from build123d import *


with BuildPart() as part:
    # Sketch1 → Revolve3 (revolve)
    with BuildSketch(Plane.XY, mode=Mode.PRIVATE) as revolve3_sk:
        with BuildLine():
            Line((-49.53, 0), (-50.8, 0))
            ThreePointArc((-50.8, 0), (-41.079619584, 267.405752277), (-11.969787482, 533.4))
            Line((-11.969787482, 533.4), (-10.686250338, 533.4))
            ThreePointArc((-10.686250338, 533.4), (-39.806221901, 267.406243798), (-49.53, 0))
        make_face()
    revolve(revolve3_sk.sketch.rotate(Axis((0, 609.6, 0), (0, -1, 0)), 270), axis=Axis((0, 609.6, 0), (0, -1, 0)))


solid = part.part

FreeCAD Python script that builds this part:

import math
import FreeCAD as App
import Part
import Sketcher
from FreeCAD import Vector
Q = App.Units.Quantity

doc = App.newDocument("Part")
body = doc.addObject("PartDesign::Body", "Body")

sketch1 = doc.addObject("Sketcher::SketchObject", "Sketch")
body.addObject(sketch1)
sketch1.AttachmentSupport = (doc.XY_Plane, [""])
sketch1.MapMode = "FlatFace"
sketch1.addGeometry([
    Part.LineSegment(Vector(-50.8, 0, 0), Vector(-49.5, 0, 0)),
    Part.ArcOfCircle(Part.Circle(Vector(3632.2, 0, 0), Vector(0, 0, 1), 3681.7), math.radians(171.67), math.radians(180)),
    Part.LineSegment(Vector(-10.7, 533.4, 0), Vector(-12, 533.4, 0)),
    Part.ArcOfCircle(Part.Circle(Vector(3632.2, 0, 0), Vector(0, 0, 1), 3683), math.radians(171.67), math.radians(180)),
], False)
sketch1.addConstraint([
    Sketcher.Constraint("Coincident", 0, 2, 1, 2),
    Sketcher.Constraint("Coincident", 1, 1, 2, 1),
    Sketcher.Constraint("Coincident", 2, 2, 3, 1),
    Sketcher.Constraint("Coincident", 3, 2, 0, 1),
    Sketcher.Constraint("Horizontal", 0),
    Sketcher.Constraint("Horizontal", 2),
    Sketcher.Constraint("Coincident", 3, 3, 1, 3),
    Sketcher.Constraint("PointOnObject", 1, 3, -1),
    Sketcher.Constraint("PointOnObject", 0, 2, -1),
    Sketcher.Constraint("Radius", 3, Q("145 in")),
    Sketcher.Constraint("Radius", 1, Q("144.95 in")),
    Sketcher.Constraint("DistanceX", -1, 1, 1, 3, Q("143 in")),
    Sketcher.Constraint("DistanceY", -1, 1, 2, 2, Q("21 in")),
])
revolution = doc.addObject("PartDesign::Revolution", "Revolution")
body.addObject(revolution)
revolution.Profile = sketch1
revolution.ReferenceAxis = (sketch1, ["V_Axis"])
revolution.Angle = 360

doc.recompute()
